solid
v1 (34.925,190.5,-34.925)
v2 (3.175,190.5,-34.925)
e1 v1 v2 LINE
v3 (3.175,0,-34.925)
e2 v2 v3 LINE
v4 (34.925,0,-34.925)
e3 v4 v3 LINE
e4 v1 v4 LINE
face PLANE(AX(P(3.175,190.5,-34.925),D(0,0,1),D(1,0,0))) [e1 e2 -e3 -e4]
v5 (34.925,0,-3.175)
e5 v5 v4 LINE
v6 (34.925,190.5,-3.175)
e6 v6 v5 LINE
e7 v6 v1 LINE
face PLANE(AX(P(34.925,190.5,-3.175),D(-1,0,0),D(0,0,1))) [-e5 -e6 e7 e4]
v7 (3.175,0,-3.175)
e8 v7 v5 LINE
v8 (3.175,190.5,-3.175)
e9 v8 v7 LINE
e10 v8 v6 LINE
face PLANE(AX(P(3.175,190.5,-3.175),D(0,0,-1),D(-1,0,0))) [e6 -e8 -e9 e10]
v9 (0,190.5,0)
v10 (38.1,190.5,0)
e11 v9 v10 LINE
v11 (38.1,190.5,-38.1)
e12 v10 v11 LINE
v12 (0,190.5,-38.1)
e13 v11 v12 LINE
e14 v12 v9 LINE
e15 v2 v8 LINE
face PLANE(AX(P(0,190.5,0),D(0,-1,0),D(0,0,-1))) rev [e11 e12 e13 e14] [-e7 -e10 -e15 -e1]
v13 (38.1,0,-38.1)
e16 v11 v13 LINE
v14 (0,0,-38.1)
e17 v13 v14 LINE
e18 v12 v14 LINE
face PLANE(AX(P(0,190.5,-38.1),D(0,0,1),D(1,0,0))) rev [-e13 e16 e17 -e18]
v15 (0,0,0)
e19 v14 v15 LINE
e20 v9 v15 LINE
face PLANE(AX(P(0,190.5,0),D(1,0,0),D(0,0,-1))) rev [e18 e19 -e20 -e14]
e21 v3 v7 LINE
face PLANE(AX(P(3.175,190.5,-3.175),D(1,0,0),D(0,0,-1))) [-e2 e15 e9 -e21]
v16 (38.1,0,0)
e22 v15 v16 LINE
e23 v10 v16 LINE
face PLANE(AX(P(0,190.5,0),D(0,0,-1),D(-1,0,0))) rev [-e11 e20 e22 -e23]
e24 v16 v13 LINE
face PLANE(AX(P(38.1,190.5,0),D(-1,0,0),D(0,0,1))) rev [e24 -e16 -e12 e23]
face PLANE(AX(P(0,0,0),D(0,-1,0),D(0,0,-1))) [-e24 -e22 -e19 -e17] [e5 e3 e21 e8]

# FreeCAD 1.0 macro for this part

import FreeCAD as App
import Part
import Sketcher
Q = App.Units.Quantity

doc = App.newDocument("Part")
body = doc.addObject("PartDesign::Body", "Body")

sketch1 = doc.addObject("Sketcher::SketchObject", "Sketch")
body.addObject(sketch1)
sketch1.AttachmentSupport = (doc.XZ_Plane, [""])
sketch1.MapMode = "FlatFace"
sketch1.addGeometry(Part.LineSegment(App.Vector(0, -38, 0), App.Vector(0, 0, 0)), False)
sketch1.addGeometry(Part.LineSegment(App.Vector(0, 0, 0), App.Vector(38, 0, 0)), False)
sketch1.addGeometry(Part.LineSegment(App.Vector(38, 0, 0), App.Vector(38, -38, 0)), False)
sketch1.addGeometry(Part.LineSegment(App.Vector(38, -38, 0), App.Vector(0, -38, 0)), False)
sketch1.addGeometry(Part.LineSegment(App.Vector(35, -3, 0), App.Vector(3, -3, 0)), False)
sketch1.addGeometry(Part.LineSegment(App.Vector(3, -3, 0), App.Vector(3, -35, 0)), False)
sketch1.addGeometry(Part.LineSegment(App.Vector(3, -35, 0), App.Vector(35, -35, 0)), False)
sketch1.addGeometry(Part.LineSegment(App.Vector(35, -35, 0), App.Vector(35, -3, 0)), False)
sketch1.addConstraint(Sketcher.Constraint("Coincident", 0, 2, 1, 1))
sketch1.addConstraint(Sketcher.Constraint("Coincident", 1, 2, 2, 1))
sketch1.addConstraint(Sketcher.Constraint("Coincident", 2, 2, 3, 1))
sketch1.addConstraint(Sketcher.Constraint("Coincident", 3, 2, 0, 1))
sketch1.addConstraint(Sketcher.Constraint("Coincident", 4, 2, 5, 1))
sketch1.addConstraint(Sketcher.Constraint("Coincident", 5, 2, 6, 1))
sketch1.addConstraint(Sketcher.Constraint("Coincident", 6, 2, 7, 1))
sketch1.addConstraint(Sketcher.Constraint("Coincident", 7, 2, 4, 1))
sketch1.addConstraint(Sketcher.Constraint("Vertical", 0))
sketch1.addConstraint(Sketcher.Constraint("Horizontal", 1))
sketch1.addConstraint(Sketcher.Constraint("Vertical", 2))
sketch1.addConstraint(Sketcher.Constraint("Horizontal", 3))
sketch1.addConstraint(Sketcher.Constraint("Horizontal", 4))
sketch1.addConstraint(Sketcher.Constraint("Vertical", 5))
sketch1.addConstraint(Sketcher.Constraint("Horizontal", 6))
sketch1.addConstraint(Sketcher.Constraint("Vertical", 7))
sketch1.addConstraint(Sketcher.Constraint("Coincident", 0, 2, -1, 1))
sketch1.addConstraint(Sketcher.Constraint("Equal", 3, 0))
sketch1.addConstraint(Sketcher.Constraint("Equal", 6, 5))
sketch1.addConstraint(Sketcher.Constraint("DistanceX", 1, 1, 1, 2, Q("1.5 in")))
sketch1.addConstraint(Sketcher.Constraint("DistanceX", 4, 2, 4, 1, Q("1.25 in")))
sketch1.addConstraint(Sketcher.Constraint("DistanceX", -1, 1, 4, 2, Q("0.125 in")))
sketch1.addConstraint(Sketcher.Constraint("DistanceY", 4, 2, -1, 1, Q("0.125 in")))
pad1 = doc.addObject("PartDesign::Pad", "Pad")
body.addObject(pad1)
pad1.Profile = sketch1
pad1.Length = Q("7.5 in")
pad1.Reversed = True

doc.recompute()
